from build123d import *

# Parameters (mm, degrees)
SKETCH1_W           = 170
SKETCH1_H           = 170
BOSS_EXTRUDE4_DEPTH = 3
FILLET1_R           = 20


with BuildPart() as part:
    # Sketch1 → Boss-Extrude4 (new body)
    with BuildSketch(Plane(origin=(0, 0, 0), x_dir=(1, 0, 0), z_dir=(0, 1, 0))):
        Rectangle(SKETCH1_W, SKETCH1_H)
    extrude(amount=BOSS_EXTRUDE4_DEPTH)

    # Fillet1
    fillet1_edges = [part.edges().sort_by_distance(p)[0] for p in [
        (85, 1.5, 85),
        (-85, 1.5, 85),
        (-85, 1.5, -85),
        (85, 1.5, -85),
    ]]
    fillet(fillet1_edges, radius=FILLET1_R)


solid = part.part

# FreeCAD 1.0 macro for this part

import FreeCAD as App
import Part
import Sketcher
Q = App.Units.Quantity


def edges_at(feature, points):
    """Names of the edges that pass closest to the given points."""
    edges = feature.Shape.Edges
    near = lambda p: min(range(len(edges)), key=lambda i: edges[i].distToShape(Part.Vertex(*p))[0])
    return sorted({f"Edge{near(p) + 1}" for p in points})

doc = App.newDocument("Part")
body = doc.addObject("PartDesign::Body", "Body")

sketch1 = body.newObject("Sketcher::SketchObject", "Sketch")
sketch1.AttachmentSupport = (doc.getObject("XZ_Plane"), [""])
sketch1.MapMode = "FlatFace"
sketch1.addGeometry(Part.LineSegment(App.Vector(-85, -85, 0), App.Vector(-85, 85, 0)), False)
sketch1.addGeometry(Part.LineSegment(App.Vector(-85, 85, 0), App.Vector(85, 85, 0)), False)
sketch1.addGeometry(Part.LineSegment(App.Vector(85, 85, 0), App.Vector(85, -85, 0)), False)
sketch1.addGeometry(Part.LineSegment(App.Vector(85, -85, 0), App.Vector(-85, -85, 0)), False)
sketch1.addConstraint(Sketcher.Constraint("Coincident", 0, 2, 1, 1))
sketch1.addConstraint(Sketcher.Constraint("Coincident", 1, 2, 2, 1))
sketch1.addConstraint(Sketcher.Constraint("Coincident", 2, 2, 3, 1))
sketch1.addConstraint(Sketcher.Constraint("Coincident", 3, 2, 0, 1))
sketch1.addConstraint(Sketcher.Constraint("Vertical", 0))
sketch1.addConstraint(Sketcher.Constraint("Horizontal", 1))
sketch1.addConstraint(Sketcher.Constraint("Vertical", 2))
sketch1.addConstraint(Sketcher.Constraint("Horizontal", 3))
sketch1.addConstraint(Sketcher.Constraint("Symmetric", 0, 2, 2, 2, -1, 1))
sketch1.addConstraint(Sketcher.Constraint("Equal", 3, 0))
sketch1.addConstraint(Sketcher.Constraint("DistanceX", 1, 1, 1, 2, Q("170 mm")))
pad1 = body.newObject("PartDesign::Pad", "Pad")
pad1.Profile = sketch1
pad1.Length = 3
pad1.Reversed = True
doc.recompute()

fillet = body.newObject("PartDesign::Fillet", "Fillet")
fillet.Base = (pad1, edges_at(pad1, [
    (85, 1.5, 85),
    (-85, 1.5, 85),
    (-85, 1.5, -85),
    (85, 1.5, -85),
]))
fillet.Radius = 20

doc.recompute()
